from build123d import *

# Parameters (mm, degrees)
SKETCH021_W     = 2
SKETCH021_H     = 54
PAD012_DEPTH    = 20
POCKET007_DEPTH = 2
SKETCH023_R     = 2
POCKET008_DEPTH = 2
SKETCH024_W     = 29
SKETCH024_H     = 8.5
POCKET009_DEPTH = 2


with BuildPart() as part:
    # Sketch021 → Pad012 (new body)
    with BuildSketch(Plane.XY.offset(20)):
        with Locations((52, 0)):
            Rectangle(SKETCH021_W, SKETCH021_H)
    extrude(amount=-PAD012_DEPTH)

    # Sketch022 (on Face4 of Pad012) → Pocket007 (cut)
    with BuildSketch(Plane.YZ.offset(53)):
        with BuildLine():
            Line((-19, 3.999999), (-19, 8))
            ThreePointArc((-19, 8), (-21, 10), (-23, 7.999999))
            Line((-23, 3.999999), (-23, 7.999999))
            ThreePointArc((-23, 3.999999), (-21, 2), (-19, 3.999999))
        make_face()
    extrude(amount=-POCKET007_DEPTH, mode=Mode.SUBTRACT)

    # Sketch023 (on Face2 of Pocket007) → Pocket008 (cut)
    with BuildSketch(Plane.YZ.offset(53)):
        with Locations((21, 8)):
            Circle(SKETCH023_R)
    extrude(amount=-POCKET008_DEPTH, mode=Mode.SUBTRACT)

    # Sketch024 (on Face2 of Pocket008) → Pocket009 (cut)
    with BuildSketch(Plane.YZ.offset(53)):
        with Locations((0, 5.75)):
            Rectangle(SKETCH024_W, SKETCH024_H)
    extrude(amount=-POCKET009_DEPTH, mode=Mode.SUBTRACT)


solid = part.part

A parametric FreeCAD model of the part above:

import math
import FreeCAD as App
import Part
import Sketcher

doc = App.newDocument("Part")
body = doc.addObject("PartDesign::Body", "Body")

sketch1 = body.newObject("Sketcher::SketchObject", "Sketch")
sketch1.AttachmentSupport = (doc.getObject("XY_Plane"), [""])
sketch1.MapMode = "FlatFace"
sketch1.AttachmentOffset = App.Placement(App.Vector(0, 0, 20), App.Rotation())
sketch1.addGeometry([
    Part.LineSegment(App.Vector(51, 27, 0), App.Vector(51, -27, 0)),
    Part.LineSegment(App.Vector(51, -27, 0), App.Vector(53, -27, 0)),
    Part.LineSegment(App.Vector(53, -27, 0), App.Vector(53, 27, 0)),
    Part.LineSegment(App.Vector(53, 27, 0), App.Vector(51, 27, 0)),
], False)
sketch1.addConstraint([
    Sketcher.Constraint("Coincident", 0, 2, 1, 1),
    Sketcher.Constraint("Coincident", 1, 2, 2, 1),
    Sketcher.Constraint("Coincident", 2, 2, 3, 1),
    Sketcher.Constraint("Coincident", 3, 2, 0, 1),
    Sketcher.Constraint("Vertical", 0),
    Sketcher.Constraint("Horizontal", 1),
    Sketcher.Constraint("Vertical", 2),
    Sketcher.Constraint("Horizontal", 3),
    Sketcher.Constraint("DistanceX", 1, 1, 1, 2, 2.0),
    Sketcher.Constraint("DistanceY", 0, 2, 0, 1, 54.0),
    Sketcher.Constraint("DistanceX", -1, 1, 0, 2, 51.0),
    Sketcher.Constraint("DistanceY", 0, 2, -1, 1, 27.0),
])
pad1 = body.newObject("PartDesign::Pad", "Pad")
pad1.Profile = sketch1
pad1.Length = 20
pad1.Reversed = True

sketch2 = body.newObject("Sketcher::SketchObject", "Sketch001")
sketch2.AttachmentSupport = (doc.getObject("YZ_Plane"), [""])
sketch2.MapMode = "FlatFace"
sketch2.AttachmentOffset = App.Placement(App.Vector(0, 0, 53), App.Rotation())
sketch2.addGeometry([
    Part.LineSegment(App.Vector(-19, 4, 0), App.Vector(-19, 8, 0)),
    Part.ArcOfCircle(Part.Circle(App.Vector(-21, 8, 0), App.Vector(0, 0, 1), 2), math.radians(0), math.radians(180)),
    Part.LineSegment(App.Vector(-23, 8, 0), App.Vector(-23, 4, 0)),
    Part.ArcOfCircle(Part.Circle(App.Vector(-21, 4, 0), App.Vector(0, 0, 1), 2), math.radians(-180), math.radians(0)),
], False)
sketch2.addConstraint([
    Sketcher.Constraint("Tangent", 0, 2, 1, 1),
    Sketcher.Constraint("Tangent", 1, 2, 2, 1),
    Sketcher.Constraint("Tangent", 2, 2, 3, 1),
    Sketcher.Constraint("Tangent", 3, 2, 0, 1),
    Sketcher.Constraint("Vertical", 0),
    Sketcher.Constraint("Vertical", 2),
    Sketcher.Constraint("Radius", 1, 2.0),
    Sketcher.Constraint("DistanceY", 0, 1, 0, 2, 4.000001),
    Sketcher.Constraint("DistanceX", 1, 3, -1, 1, 21.0),
    Sketcher.Constraint("DistanceY", -1, 1, 1, 3, 8.0),
])
pocket1 = body.newObject("PartDesign::Pocket", "Pocket")
pocket1.Profile = sketch2
pocket1.Length = 2

sketch3 = body.newObject("Sketcher::SketchObject", "Sketch002")
sketch3.AttachmentSupport = (doc.getObject("YZ_Plane"), [""])
sketch3.MapMode = "FlatFace"
sketch3.AttachmentOffset = App.Placement(App.Vector(0, 0, 53), App.Rotation())
sketch3.addGeometry(Part.Circle(App.Vector(21, 8, 0), App.Vector(0, 0, 1), 2), False)
sketch3.addConstraint([
    Sketcher.Constraint("Diameter", 0, 4.0),
    Sketcher.Constraint("DistanceX", -1, 1, 0, 3, 21.0),
    Sketcher.Constraint("DistanceY", -1, 1, 0, 3, 8.0),
])
pocket2 = body.newObject("PartDesign::Pocket", "Pocket001")
pocket2.Profile = sketch3
pocket2.Length = 2

sketch4 = body.newObject("Sketcher::SketchObject", "Sketch003")
sketch4.AttachmentSupport = (doc.getObject("YZ_Plane"), [""])
sketch4.MapMode = "FlatFace"
sketch4.AttachmentOffset = App.Placement(App.Vector(0, 0, 53), App.Rotation())
sketch4.addGeometry([
    Part.LineSegment(App.Vector(-14, 10, 0), App.Vector(-14, 2, 0)),
    Part.LineSegment(App.Vector(-14, 2, 0), App.Vector(14, 2, 0)),
    Part.LineSegment(App.Vector(14, 2, 0), App.Vector(14, 10, 0)),
    Part.LineSegment(App.Vector(14, 10, 0), App.Vector(-14, 10, 0)),
], False)
sketch4.addConstraint([
    Sketcher.Constraint("Coincident", 0, 2, 1, 1),
    Sketcher.Constraint("Coincident", 1, 2, 2, 1),
    Sketcher.Constraint("Coincident", 2, 2, 3, 1),
    Sketcher.Constraint("Coincident", 3, 2, 0, 1),
    Sketcher.Constraint("Vertical", 0),
    Sketcher.Constraint("Horizontal", 1),
    Sketcher.Constraint("Vertical", 2),
    Sketcher.Constraint("Horizontal", 3),
    Sketcher.Constraint("DistanceX", 1, 1, 1, 2, 29.0),
    Sketcher.Constraint("DistanceY", 0, 2, 0, 1, 8.5),
    Sketcher.Constraint("DistanceY", -1, 1, 2, 2, 10.0),
    Sketcher.Constraint("DistanceX", 0, 2, -1, 1, 14.5),
])
pocket3 = body.newObject("PartDesign::Pocket", "Pocket002")
pocket3.Profile = sketch4
pocket3.Length = 2

doc.recompute()
